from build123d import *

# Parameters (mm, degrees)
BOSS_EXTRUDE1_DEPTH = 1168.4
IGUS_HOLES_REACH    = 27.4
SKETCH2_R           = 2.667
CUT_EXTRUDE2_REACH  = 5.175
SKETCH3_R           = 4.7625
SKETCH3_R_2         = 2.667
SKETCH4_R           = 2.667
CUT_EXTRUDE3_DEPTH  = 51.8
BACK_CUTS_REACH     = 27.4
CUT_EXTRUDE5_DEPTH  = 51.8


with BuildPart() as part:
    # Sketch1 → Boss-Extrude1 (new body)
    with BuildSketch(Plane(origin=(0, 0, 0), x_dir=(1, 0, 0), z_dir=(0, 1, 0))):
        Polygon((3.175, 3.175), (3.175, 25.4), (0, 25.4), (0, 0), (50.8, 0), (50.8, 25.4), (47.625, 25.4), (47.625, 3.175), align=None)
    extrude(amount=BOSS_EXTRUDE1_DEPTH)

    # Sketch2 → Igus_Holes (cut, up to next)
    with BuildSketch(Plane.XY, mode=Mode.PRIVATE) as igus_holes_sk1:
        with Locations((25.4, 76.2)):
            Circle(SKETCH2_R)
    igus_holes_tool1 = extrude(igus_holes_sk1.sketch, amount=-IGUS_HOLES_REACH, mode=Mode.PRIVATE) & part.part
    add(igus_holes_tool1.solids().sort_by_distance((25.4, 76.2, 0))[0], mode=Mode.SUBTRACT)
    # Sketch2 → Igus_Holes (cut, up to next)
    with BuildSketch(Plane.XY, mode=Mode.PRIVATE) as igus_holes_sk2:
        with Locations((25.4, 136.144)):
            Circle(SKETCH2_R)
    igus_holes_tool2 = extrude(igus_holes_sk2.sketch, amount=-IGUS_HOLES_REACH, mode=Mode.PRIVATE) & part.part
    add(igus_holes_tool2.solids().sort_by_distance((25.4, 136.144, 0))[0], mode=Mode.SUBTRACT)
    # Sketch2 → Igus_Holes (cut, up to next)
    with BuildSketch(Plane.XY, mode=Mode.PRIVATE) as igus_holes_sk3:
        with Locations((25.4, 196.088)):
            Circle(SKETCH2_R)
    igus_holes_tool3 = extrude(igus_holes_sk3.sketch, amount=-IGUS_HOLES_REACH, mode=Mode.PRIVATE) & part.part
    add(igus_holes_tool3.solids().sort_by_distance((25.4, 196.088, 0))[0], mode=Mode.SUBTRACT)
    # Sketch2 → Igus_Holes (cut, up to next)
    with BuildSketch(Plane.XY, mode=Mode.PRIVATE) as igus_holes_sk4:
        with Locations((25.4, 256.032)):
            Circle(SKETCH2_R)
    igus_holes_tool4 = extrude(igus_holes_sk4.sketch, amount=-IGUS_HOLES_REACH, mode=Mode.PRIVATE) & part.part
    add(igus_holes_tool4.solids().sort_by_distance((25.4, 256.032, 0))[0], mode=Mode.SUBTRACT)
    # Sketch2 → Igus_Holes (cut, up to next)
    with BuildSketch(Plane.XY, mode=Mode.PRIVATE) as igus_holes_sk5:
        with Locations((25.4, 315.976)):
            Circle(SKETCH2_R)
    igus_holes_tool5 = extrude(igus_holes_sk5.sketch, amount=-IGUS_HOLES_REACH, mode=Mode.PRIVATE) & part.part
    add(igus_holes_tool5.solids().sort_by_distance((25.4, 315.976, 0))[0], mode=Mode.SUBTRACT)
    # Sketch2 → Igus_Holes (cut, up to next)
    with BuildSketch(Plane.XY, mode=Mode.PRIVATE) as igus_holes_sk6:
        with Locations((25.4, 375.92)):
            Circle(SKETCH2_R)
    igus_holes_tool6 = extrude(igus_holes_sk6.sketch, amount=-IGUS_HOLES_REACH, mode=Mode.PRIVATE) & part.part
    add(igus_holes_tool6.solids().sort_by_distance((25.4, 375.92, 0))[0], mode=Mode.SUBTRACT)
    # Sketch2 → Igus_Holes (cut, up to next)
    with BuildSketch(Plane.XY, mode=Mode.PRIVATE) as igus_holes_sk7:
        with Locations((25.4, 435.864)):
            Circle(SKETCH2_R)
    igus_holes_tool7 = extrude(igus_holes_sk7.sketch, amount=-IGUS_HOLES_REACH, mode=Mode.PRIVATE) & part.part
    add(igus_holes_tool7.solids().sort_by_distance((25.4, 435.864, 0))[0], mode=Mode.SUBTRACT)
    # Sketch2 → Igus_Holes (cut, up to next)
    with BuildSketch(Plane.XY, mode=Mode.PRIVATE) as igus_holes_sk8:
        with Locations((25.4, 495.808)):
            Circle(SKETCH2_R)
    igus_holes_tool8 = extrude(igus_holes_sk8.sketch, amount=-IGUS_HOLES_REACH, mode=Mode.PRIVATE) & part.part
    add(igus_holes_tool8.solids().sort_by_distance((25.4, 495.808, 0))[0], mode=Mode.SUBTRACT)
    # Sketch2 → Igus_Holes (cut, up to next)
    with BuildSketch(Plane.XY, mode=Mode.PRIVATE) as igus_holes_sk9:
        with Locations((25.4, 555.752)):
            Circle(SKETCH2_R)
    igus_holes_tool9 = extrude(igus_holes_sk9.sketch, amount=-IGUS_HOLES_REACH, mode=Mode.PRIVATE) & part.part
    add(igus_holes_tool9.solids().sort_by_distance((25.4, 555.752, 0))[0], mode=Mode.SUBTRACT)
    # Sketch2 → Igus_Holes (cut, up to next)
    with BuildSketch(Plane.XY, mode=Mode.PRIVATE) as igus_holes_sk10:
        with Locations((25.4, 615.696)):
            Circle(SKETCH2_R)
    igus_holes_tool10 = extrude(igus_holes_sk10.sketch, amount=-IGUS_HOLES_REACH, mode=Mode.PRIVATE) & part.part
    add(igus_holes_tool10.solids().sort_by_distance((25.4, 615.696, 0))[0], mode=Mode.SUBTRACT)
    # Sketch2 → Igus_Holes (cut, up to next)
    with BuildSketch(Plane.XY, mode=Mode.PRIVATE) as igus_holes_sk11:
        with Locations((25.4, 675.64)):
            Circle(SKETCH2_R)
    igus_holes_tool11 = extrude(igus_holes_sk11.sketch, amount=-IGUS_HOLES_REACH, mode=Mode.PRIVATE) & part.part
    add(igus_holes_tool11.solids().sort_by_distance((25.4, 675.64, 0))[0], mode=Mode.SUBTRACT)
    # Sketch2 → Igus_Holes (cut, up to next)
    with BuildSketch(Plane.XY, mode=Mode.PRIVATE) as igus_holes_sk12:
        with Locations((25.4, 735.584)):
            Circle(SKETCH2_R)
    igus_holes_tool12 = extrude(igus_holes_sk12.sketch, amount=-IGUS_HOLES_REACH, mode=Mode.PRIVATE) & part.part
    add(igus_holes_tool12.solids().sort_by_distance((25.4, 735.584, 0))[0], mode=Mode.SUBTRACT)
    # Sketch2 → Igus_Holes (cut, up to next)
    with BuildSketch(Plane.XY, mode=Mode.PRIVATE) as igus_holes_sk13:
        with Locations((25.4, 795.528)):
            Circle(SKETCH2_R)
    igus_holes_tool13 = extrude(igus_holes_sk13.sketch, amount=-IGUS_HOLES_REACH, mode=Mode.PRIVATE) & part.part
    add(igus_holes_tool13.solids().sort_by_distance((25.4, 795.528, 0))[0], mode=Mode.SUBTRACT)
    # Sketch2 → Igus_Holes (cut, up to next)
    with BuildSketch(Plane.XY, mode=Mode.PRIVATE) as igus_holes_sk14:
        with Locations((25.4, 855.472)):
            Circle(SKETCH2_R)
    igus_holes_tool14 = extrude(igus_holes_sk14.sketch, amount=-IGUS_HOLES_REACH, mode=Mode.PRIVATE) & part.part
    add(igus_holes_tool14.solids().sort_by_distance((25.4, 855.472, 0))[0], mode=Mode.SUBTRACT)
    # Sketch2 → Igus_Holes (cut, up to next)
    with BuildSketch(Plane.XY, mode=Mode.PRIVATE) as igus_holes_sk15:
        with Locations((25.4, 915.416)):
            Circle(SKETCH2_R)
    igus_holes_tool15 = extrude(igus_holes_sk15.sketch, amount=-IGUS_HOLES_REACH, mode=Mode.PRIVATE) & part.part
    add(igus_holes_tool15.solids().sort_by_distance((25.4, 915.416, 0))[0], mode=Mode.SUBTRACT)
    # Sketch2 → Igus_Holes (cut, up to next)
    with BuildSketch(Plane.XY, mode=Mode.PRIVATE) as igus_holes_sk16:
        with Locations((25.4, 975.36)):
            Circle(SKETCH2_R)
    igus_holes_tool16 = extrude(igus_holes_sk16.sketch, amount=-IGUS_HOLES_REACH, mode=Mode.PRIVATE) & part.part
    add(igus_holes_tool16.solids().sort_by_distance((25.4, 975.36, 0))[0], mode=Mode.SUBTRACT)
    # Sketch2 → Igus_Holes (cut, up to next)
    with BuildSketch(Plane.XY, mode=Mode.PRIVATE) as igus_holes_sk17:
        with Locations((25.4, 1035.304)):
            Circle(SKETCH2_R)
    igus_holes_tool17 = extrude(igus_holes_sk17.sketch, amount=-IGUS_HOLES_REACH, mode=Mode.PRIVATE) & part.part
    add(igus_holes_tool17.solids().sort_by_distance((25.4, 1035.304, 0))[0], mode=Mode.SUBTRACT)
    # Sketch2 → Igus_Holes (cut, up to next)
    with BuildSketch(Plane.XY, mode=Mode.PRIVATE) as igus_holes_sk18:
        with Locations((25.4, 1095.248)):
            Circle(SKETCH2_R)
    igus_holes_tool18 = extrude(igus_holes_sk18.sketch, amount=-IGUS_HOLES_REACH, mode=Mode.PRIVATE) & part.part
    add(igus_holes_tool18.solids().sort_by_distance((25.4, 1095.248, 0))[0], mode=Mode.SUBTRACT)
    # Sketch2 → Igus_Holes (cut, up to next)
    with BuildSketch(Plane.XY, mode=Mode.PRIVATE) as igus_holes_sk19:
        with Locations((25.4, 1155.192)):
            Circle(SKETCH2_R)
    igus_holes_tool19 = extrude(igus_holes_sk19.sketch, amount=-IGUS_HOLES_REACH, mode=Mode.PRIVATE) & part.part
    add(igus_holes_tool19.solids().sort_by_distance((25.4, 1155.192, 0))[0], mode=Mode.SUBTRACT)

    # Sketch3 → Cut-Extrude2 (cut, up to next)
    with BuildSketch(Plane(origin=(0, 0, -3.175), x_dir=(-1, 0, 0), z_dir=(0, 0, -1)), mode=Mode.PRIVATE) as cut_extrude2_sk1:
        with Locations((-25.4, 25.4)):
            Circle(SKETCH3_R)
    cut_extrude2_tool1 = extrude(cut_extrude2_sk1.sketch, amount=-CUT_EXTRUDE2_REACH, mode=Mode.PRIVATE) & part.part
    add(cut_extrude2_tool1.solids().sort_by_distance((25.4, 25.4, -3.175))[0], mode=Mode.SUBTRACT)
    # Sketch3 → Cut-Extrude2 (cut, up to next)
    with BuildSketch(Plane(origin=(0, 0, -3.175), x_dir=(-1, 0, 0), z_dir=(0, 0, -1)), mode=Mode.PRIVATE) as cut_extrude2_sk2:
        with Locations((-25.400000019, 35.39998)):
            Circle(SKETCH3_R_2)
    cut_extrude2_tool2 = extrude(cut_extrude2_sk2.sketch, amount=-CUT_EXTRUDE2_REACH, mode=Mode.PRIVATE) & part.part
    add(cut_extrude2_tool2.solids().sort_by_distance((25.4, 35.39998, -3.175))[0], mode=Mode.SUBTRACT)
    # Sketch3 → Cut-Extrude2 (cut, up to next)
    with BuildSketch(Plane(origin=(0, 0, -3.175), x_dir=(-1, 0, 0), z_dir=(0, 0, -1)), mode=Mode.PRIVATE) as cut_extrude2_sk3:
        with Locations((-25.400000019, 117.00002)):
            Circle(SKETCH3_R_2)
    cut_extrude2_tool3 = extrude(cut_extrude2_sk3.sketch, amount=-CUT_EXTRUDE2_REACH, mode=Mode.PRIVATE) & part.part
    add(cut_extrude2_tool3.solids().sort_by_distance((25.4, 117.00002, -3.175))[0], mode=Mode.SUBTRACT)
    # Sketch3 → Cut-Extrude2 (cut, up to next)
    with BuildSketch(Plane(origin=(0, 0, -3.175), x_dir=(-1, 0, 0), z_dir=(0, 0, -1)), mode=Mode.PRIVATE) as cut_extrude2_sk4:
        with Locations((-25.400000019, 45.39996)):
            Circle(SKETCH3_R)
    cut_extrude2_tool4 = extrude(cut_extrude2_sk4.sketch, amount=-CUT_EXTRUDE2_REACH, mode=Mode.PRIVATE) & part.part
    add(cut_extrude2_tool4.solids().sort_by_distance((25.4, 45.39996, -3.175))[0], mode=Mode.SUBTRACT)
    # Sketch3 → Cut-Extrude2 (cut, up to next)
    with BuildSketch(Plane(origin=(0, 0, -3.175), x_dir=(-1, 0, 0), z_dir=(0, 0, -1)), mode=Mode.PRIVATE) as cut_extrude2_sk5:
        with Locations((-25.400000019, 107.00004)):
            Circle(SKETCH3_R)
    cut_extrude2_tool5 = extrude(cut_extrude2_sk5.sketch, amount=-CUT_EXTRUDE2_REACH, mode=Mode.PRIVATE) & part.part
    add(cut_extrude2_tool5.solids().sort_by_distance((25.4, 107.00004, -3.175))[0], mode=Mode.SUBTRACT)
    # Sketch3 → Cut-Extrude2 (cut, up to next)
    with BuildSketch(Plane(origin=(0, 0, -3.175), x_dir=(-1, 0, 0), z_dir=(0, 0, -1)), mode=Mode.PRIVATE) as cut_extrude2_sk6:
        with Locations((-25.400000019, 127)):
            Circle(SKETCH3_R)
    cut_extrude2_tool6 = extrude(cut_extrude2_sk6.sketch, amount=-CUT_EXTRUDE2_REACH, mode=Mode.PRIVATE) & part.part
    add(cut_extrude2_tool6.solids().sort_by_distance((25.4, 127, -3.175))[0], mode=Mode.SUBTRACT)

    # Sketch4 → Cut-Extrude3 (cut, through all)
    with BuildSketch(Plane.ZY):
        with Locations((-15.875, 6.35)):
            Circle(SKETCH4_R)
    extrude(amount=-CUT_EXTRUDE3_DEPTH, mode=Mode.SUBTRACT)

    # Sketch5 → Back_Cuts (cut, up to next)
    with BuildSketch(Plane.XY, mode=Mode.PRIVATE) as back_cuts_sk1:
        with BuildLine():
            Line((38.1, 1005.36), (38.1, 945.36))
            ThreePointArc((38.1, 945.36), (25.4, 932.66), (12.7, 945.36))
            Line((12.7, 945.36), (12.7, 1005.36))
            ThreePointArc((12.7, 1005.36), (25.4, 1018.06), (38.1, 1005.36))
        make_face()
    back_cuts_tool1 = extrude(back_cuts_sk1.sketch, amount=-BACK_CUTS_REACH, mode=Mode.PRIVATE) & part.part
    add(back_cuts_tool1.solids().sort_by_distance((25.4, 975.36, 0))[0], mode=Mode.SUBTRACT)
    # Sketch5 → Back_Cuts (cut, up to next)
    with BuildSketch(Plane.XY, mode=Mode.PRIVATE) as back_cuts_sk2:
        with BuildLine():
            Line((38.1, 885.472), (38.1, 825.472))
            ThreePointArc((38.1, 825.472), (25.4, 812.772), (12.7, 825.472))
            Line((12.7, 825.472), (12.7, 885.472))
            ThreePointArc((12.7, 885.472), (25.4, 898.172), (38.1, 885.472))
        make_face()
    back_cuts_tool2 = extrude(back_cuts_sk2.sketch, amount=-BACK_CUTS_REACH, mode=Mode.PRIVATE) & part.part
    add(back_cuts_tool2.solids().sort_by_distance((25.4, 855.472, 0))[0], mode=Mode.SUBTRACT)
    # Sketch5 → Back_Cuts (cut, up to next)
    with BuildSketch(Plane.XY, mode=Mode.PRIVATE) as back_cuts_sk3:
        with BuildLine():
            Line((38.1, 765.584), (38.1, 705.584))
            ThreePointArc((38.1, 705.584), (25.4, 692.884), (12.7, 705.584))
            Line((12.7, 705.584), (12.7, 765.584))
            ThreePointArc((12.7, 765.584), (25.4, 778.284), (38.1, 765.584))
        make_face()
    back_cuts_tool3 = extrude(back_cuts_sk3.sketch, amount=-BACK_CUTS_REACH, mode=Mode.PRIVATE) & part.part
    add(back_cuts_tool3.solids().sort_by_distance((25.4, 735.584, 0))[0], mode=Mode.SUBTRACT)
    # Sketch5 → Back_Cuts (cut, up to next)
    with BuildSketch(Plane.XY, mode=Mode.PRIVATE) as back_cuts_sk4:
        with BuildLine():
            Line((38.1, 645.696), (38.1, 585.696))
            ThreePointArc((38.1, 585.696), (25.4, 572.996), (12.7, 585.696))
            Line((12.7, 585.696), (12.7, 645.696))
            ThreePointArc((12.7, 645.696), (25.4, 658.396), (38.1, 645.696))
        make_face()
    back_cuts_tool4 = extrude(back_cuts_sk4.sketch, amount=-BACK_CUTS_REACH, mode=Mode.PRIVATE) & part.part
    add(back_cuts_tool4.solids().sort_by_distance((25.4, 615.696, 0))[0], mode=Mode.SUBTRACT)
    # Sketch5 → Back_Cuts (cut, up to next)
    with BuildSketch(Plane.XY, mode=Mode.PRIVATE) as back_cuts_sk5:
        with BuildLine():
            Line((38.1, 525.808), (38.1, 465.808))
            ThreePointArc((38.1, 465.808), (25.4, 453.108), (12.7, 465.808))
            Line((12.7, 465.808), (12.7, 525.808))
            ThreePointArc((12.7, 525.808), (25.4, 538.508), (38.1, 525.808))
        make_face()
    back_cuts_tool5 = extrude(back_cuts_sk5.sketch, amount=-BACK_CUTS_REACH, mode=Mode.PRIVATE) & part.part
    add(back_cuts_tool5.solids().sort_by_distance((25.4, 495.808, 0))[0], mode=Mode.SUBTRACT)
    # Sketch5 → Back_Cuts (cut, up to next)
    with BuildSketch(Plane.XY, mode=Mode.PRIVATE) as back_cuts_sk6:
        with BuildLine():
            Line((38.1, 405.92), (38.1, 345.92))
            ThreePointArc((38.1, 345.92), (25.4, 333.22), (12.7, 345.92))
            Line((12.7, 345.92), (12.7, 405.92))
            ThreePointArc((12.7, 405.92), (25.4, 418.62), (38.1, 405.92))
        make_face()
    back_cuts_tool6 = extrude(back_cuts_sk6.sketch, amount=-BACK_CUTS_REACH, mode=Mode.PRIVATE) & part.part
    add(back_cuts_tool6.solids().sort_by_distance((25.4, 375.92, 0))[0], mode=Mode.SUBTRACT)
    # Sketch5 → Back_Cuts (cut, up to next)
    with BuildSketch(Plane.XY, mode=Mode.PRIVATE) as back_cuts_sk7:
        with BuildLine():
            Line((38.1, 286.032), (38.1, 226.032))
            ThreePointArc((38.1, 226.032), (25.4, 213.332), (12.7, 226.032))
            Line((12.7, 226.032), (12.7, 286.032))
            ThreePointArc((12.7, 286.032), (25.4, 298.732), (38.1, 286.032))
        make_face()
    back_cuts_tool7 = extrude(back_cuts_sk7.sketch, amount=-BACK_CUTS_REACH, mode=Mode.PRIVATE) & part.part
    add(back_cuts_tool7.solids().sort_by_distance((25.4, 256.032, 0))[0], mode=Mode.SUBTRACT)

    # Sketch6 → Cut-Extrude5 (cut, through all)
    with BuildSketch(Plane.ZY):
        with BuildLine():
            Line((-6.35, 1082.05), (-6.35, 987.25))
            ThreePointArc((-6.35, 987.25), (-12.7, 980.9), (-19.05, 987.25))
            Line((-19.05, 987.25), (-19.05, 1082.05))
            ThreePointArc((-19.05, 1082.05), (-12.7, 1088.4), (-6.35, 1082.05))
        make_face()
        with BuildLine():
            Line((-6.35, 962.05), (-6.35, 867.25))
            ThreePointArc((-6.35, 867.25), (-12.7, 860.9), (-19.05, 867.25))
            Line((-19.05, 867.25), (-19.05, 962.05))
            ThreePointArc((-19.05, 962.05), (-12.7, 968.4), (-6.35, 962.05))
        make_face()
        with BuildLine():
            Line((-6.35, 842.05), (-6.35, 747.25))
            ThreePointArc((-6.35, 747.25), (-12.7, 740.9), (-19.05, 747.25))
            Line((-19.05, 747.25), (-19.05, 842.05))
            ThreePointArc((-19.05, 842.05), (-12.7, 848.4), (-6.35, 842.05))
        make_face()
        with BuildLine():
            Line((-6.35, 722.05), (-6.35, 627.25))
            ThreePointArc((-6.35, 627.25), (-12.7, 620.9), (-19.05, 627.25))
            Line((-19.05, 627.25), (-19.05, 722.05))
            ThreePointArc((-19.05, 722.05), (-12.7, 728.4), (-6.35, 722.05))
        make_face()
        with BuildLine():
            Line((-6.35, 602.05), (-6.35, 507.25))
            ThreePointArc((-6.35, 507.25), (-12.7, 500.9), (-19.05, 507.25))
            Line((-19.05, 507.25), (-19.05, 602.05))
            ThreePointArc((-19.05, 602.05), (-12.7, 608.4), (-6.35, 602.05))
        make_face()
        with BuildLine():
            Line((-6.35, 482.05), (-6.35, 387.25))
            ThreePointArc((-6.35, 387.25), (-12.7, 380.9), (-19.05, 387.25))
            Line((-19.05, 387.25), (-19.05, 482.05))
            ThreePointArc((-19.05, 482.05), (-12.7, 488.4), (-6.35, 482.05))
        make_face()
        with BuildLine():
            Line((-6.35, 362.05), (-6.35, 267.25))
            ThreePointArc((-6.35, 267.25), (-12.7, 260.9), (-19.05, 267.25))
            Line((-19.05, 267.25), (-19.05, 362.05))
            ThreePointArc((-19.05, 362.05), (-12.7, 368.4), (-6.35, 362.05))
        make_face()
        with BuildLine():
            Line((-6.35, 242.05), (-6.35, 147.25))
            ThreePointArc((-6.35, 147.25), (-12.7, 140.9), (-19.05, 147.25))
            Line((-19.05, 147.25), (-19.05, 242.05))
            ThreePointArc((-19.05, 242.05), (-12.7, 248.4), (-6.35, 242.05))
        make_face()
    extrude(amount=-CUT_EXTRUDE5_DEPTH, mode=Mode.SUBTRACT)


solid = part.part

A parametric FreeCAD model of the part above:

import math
import FreeCAD as App
import Part
import Sketcher
from FreeCAD import Vector
Q = App.Units.Quantity


def add_polygon(sketch, points):
    """Adds a closed chain of lines whose ends are joined by coincident constraints."""
    first, n = sketch.GeometryCount, len(points)
    for a, b in zip(points, points[1:] + points[:1]):
        sketch.addGeometry(Part.LineSegment(App.Vector(*a, 0), App.Vector(*b, 0)), False)
    for i in range(n):
        sketch.addConstraint(Sketcher.Constraint("Coincident", first + i, 2, first + (i + 1) % n, 1))

doc = App.newDocument("Part")
body = doc.addObject("PartDesign::Body", "Body")

# Sketch on XZ plane
sketch1 = doc.addObject("Sketcher::SketchObject", "Sketch")
body.addObject(sketch1)
sketch1.AttachmentSupport = (doc.XZ_Plane, [""])
sketch1.MapMode = "FlatFace"
add_polygon(sketch1, [(3.2, -3.2), (3.2, -25.4), (0, -25.4), (0, 0), (50.8, 0), (50.8, -25.4), (47.6, -25.4), (47.6, -3.2)])  # lines 0-7
sketch1.addConstraint([
    Sketcher.Constraint("Vertical", 0),
    Sketcher.Constraint("Horizontal", 1),
    Sketcher.Constraint("Vertical", 2),
    Sketcher.Constraint("Horizontal", 3),
    Sketcher.Constraint("Vertical", 4),
    Sketcher.Constraint("Horizontal", 5),
    Sketcher.Constraint("Vertical", 6),
    Sketcher.Constraint("Horizontal", 7),
    Sketcher.Constraint("Coincident", 2, 2, -1, 1),
    Sketcher.Constraint("Horizontal", 1, 2, 4, 2),
    Sketcher.Constraint("Equal", 1, 5),
    Sketcher.Constraint("DistanceX", 3, 1, 3, 2, Q("2 in")),
    Sketcher.Constraint("DistanceY", 2, 1, 2, 2, Q("1 in")),
    Sketcher.Constraint("DistanceX", 7, 2, 7, 1, Q("1.75 in")),
    Sketcher.Constraint("DistanceY", 0, 2, 0, 1, Q("0.875 in")),
])
pad1 = doc.addObject("PartDesign::Pad", "Pad")
body.addObject(pad1)
pad1.Profile = sketch1
pad1.Length = Q("46 in")
pad1.Reversed = True

# Sketch on XY plane
sketch2 = doc.addObject("Sketcher::SketchObject", "Sketch001")
body.addObject(sketch2)
sketch2.AttachmentSupport = (doc.XY_Plane, [""])
sketch2.MapMode = "FlatFace"
sketch2.addGeometry(Part.Circle(Vector(25.4, 76.2, 0), Vector(0, 0, 1), 2.7), False)
sketch2.addConstraint([
    Sketcher.Constraint("Diameter", 0, Q("0.21 in")),
    Sketcher.Constraint("DistanceX", -1, 1, 0, 3, Q("1 in")),
    Sketcher.Constraint("DistanceY", -1, 1, 0, 3, Q("3 in")),
])
pocket1 = doc.addObject("PartDesign::Pocket", "Pocket")
body.addObject(pocket1)
pocket1.Profile = sketch2
pocket1.Type = "UpToFirst"

# Sketch on XY plane
sketch3 = doc.addObject("Sketcher::SketchObject", "Sketch002")
body.addObject(sketch3)
sketch3.AttachmentSupport = (doc.XY_Plane, [""])
sketch3.MapMode = "FlatFace"
sketch3.addGeometry(Part.Circle(Vector(25.4, 136.1, 0), Vector(0, 0, 1), 2.7), False)
sketch3.addConstraint([
    Sketcher.Constraint("Diameter", 0, Q("0.21 in")),
    Sketcher.Constraint("DistanceX", -1, 1, 0, 3, Q("1 in")),
    Sketcher.Constraint("DistanceY", -1, 1, 0, 3, Q("5.36 in")),
])
pocket2 = doc.addObject("PartDesign::Pocket", "Pocket001")
body.addObject(pocket2)
pocket2.Profile = sketch3
pocket2.Type = "UpToFirst"

# Sketch on XY plane
sketch4 = doc.addObject("Sketcher::SketchObject", "Sketch003")
body.addObject(sketch4)
sketch4.AttachmentSupport = (doc.XY_Plane, [""])
sketch4.MapMode = "FlatFace"
sketch4.addGeometry(Part.Circle(Vector(25.4, 196.1, 0), Vector(0, 0, 1), 2.7), False)
sketch4.addConstraint([
    Sketcher.Constraint("Diameter", 0, Q("0.21 in")),
    Sketcher.Constraint("DistanceX", -1, 1, 0, 3, Q("1 in")),
    Sketcher.Constraint("DistanceY", -1, 1, 0, 3, Q("7.72 in")),
])
pocket3 = doc.addObject("PartDesign::Pocket", "Pocket002")
body.addObject(pocket3)
pocket3.Profile = sketch4
pocket3.Type = "UpToFirst"

# Sketch on XY plane
sketch5 = doc.addObject("Sketcher::SketchObject", "Sketch004")
body.addObject(sketch5)
sketch5.AttachmentSupport = (doc.XY_Plane, [""])
sketch5.MapMode = "FlatFace"
sketch5.addGeometry(Part.Circle(Vector(25.4, 256, 0), Vector(0, 0, 1), 2.7), False)
sketch5.addConstraint([
    Sketcher.Constraint("Diameter", 0, Q("0.21 in")),
    Sketcher.Constraint("DistanceX", -1, 1, 0, 3, Q("1 in")),
    Sketcher.Constraint("DistanceY", -1, 1, 0, 3, Q("10.08 in")),
])
pocket4 = doc.addObject("PartDesign::Pocket", "Pocket003")
body.addObject(pocket4)
pocket4.Profile = sketch5
pocket4.Type = "UpToFirst"

# Sketch on XY plane
sketch6 = doc.addObject("Sketcher::SketchObject", "Sketch005")
body.addObject(sketch6)
sketch6.AttachmentSupport = (doc.XY_Plane, [""])
sketch6.MapMode = "FlatFace"
sketch6.addGeometry(Part.Circle(Vector(25.4, 316, 0), Vector(0, 0, 1), 2.7), False)
sketch6.addConstraint([
    Sketcher.Constraint("Diameter", 0, Q("0.21 in")),
    Sketcher.Constraint("DistanceX", -1, 1, 0, 3, Q("1 in")),
    Sketcher.Constraint("DistanceY", -1, 1, 0, 3, Q("12.44 in")),
])
pocket5 = doc.addObject("PartDesign::Pocket", "Pocket004")
body.addObject(pocket5)
pocket5.Profile = sketch6
pocket5.Type = "UpToFirst"

# Sketch on XY plane
sketch7 = doc.addObject("Sketcher::SketchObject", "Sketch006")
body.addObject(sketch7)
sketch7.AttachmentSupport = (doc.XY_Plane, [""])
sketch7.MapMode = "FlatFace"
sketch7.addGeometry(Part.Circle(Vector(25.4, 375.9, 0), Vector(0, 0, 1), 2.7), False)
sketch7.addConstraint([
    Sketcher.Constraint("Diameter", 0, Q("0.21 in")),
    Sketcher.Constraint("DistanceX", -1, 1, 0, 3, Q("1 in")),
    Sketcher.Constraint("DistanceY", -1, 1, 0, 3, Q("14.8 in")),
])
pocket6 = doc.addObject("PartDesign::Pocket", "Pocket005")
body.addObject(pocket6)
pocket6.Profile = sketch7
pocket6.Type = "UpToFirst"

# Sketch on XY plane
sketch8 = doc.addObject("Sketcher::SketchObject", "Sketch007")
body.addObject(sketch8)
sketch8.AttachmentSupport = (doc.XY_Plane, [""])
sketch8.MapMode = "FlatFace"
sketch8.addGeometry(Part.Circle(Vector(25.4, 435.9, 0), Vector(0, 0, 1), 2.7), False)
sketch8.addConstraint([
    Sketcher.Constraint("Diameter", 0, Q("0.21 in")),
    Sketcher.Constraint("DistanceX", -1, 1, 0, 3, Q("1 in")),
    Sketcher.Constraint("DistanceY", -1, 1, 0, 3, Q("17.16 in")),
])
pocket7 = doc.addObject("PartDesign::Pocket", "Pocket006")
body.addObject(pocket7)
pocket7.Profile = sketch8
pocket7.Type = "UpToFirst"

# Sketch on XY plane
sketch9 = doc.addObject("Sketcher::SketchObject", "Sketch008")
body.addObject(sketch9)
sketch9.AttachmentSupport = (doc.XY_Plane, [""])
sketch9.MapMode = "FlatFace"
sketch9.addGeometry(Part.Circle(Vector(25.4, 495.8, 0), Vector(0, 0, 1), 2.7), False)
sketch9.addConstraint([
    Sketcher.Constraint("Diameter", 0, Q("0.21 in")),
    Sketcher.Constraint("DistanceX", -1, 1, 0, 3, Q("1 in")),
    Sketcher.Constraint("DistanceY", -1, 1, 0, 3, Q("19.52 in")),
])
pocket8 = doc.addObject("PartDesign::Pocket", "Pocket007")
body.addObject(pocket8)
pocket8.Profile = sketch9
pocket8.Type = "UpToFirst"

# Sketch on XY plane
sketch10 = doc.addObject("Sketcher::SketchObject", "Sketch009")
body.addObject(sketch10)
sketch10.AttachmentSupport = (doc.XY_Plane, [""])
sketch10.MapMode = "FlatFace"
sketch10.addGeometry(Part.Circle(Vector(25.4, 555.8, 0), Vector(0, 0, 1), 2.7), False)
sketch10.addConstraint([
    Sketcher.Constraint("Diameter", 0, Q("0.21 in")),
    Sketcher.Constraint("DistanceX", -1, 1, 0, 3, Q("1 in")),
    Sketcher.Constraint("DistanceY", -1, 1, 0, 3, Q("21.88 in")),
])
pocket9 = doc.addObject("PartDesign::Pocket", "Pocket008")
body.addObject(pocket9)
pocket9.Profile = sketch10
pocket9.Type = "UpToFirst"

# Sketch on XY plane
sketch11 = doc.addObject("Sketcher::SketchObject", "Sketch010")
body.addObject(sketch11)
sketch11.AttachmentSupport = (doc.XY_Plane, [""])
sketch11.MapMode = "FlatFace"
sketch11.addGeometry(Part.Circle(Vector(25.4, 615.7, 0), Vector(0, 0, 1), 2.7), False)
sketch11.addConstraint([
    Sketcher.Constraint("Diameter", 0, Q("0.21 in")),
    Sketcher.Constraint("DistanceX", -1, 1, 0, 3, Q("1 in")),
    Sketcher.Constraint("DistanceY", -1, 1, 0, 3, Q("24.24 in")),
])
pocket10 = doc.addObject("PartDesign::Pocket", "Pocket009")
body.addObject(pocket10)
pocket10.Profile = sketch11
pocket10.Type = "UpToFirst"

# Sketch on XY plane
sketch12 = doc.addObject("Sketcher::SketchObject", "Sketch011")
body.addObject(sketch12)
sketch12.AttachmentSupport = (doc.XY_Plane, [""])
sketch12.MapMode = "FlatFace"
sketch12.addGeometry(Part.Circle(Vector(25.4, 675.6, 0), Vector(0, 0, 1), 2.7), False)
sketch12.addConstraint([
    Sketcher.Constraint("Diameter", 0, Q("0.21 in")),
    Sketcher.Constraint("DistanceX", -1, 1, 0, 3, Q("1 in")),
    Sketcher.Constraint("DistanceY", -1, 1, 0, 3, Q("26.6 in")),
])
pocket11 = doc.addObject("PartDesign::Pocket", "Pocket010")
body.addObject(pocket11)
pocket11.Profile = sketch12
pocket11.Type = "UpToFirst"

# Sketch on XY plane
sketch13 = doc.addObject("Sketcher::SketchObject", "Sketch012")
body.addObject(sketch13)
sketch13.AttachmentSupport = (doc.XY_Plane, [""])
sketch13.MapMode = "FlatFace"
sketch13.addGeometry(Part.Circle(Vector(25.4, 735.6, 0), Vector(0, 0, 1), 2.7), False)
sketch13.addConstraint([
    Sketcher.Constraint("Diameter", 0, Q("0.21 in")),
    Sketcher.Constraint("DistanceX", -1, 1, 0, 3, Q("1 in")),
    Sketcher.Constraint("DistanceY", -1, 1, 0, 3, Q("28.96 in")),
])
pocket12 = doc.addObject("PartDesign::Pocket", "Pocket011")
body.addObject(pocket12)
pocket12.Profile = sketch13
pocket12.Type = "UpToFirst"

# Sketch on XY plane
sketch14 = doc.addObject("Sketcher::SketchObject", "Sketch013")
body.addObject(sketch14)
sketch14.AttachmentSupport = (doc.XY_Plane, [""])
sketch14.MapMode = "FlatFace"
sketch14.addGeometry(Part.Circle(Vector(25.4, 795.5, 0), Vector(0, 0, 1), 2.7), False)
sketch14.addConstraint([
    Sketcher.Constraint("Diameter", 0, Q("0.21 in")),
    Sketcher.Constraint("DistanceX", -1, 1, 0, 3, Q("1 in")),
    Sketcher.Constraint("DistanceY", -1, 1, 0, 3, Q("31.32 in")),
])
pocket13 = doc.addObject("PartDesign::Pocket", "Pocket012")
body.addObject(pocket13)
pocket13.Profile = sketch14
pocket13.Type = "UpToFirst"

# Sketch on XY plane
sketch15 = doc.addObject("Sketcher::SketchObject", "Sketch014")
body.addObject(sketch15)
sketch15.AttachmentSupport = (doc.XY_Plane, [""])
sketch15.MapMode = "FlatFace"
sketch15.addGeometry(Part.Circle(Vector(25.4, 855.5, 0), Vector(0, 0, 1), 2.7), False)
sketch15.addConstraint([
    Sketcher.Constraint("Diameter", 0, Q("0.21 in")),
    Sketcher.Constraint("DistanceX", -1, 1, 0, 3, Q("1 in")),
    Sketcher.Constraint("DistanceY", -1, 1, 0, 3, Q("33.68 in")),
])
pocket14 = doc.addObject("PartDesign::Pocket", "Pocket013")
body.addObject(pocket14)
pocket14.Profile = sketch15
pocket14.Type = "UpToFirst"

# Sketch on XY plane
sketch16 = doc.addObject("Sketcher::SketchObject", "Sketch015")
body.addObject(sketch16)
sketch16.AttachmentSupport = (doc.XY_Plane, [""])
sketch16.MapMode = "FlatFace"
sketch16.addGeometry(Part.Circle(Vector(25.4, 915.4, 0), Vector(0, 0, 1), 2.7), False)
sketch16.addConstraint([
    Sketcher.Constraint("Diameter", 0, Q("0.21 in")),
    Sketcher.Constraint("DistanceX", -1, 1, 0, 3, Q("1 in")),
    Sketcher.Constraint("DistanceY", -1, 1, 0, 3, Q("36.04 in")),
])
pocket15 = doc.addObject("PartDesign::Pocket", "Pocket014")
body.addObject(pocket15)
pocket15.Profile = sketch16
pocket15.Type = "UpToFirst"

# Sketch on XY plane
sketch17 = doc.addObject("Sketcher::SketchObject", "Sketch016")
body.addObject(sketch17)
sketch17.AttachmentSupport = (doc.XY_Plane, [""])
sketch17.MapMode = "FlatFace"
sketch17.addGeometry(Part.Circle(Vector(25.4, 975.4, 0), Vector(0, 0, 1), 2.7), False)
sketch17.addConstraint([
    Sketcher.Constraint("Diameter", 0, Q("0.21 in")),
    Sketcher.Constraint("DistanceX", -1, 1, 0, 3, Q("1 in")),
    Sketcher.Constraint("DistanceY", -1, 1, 0, 3, Q("38.4 in")),
])
pocket16 = doc.addObject("PartDesign::Pocket", "Pocket015")
body.addObject(pocket16)
pocket16.Profile = sketch17
pocket16.Type = "UpToFirst"

# Sketch on XY plane
sketch18 = doc.addObject("Sketcher::SketchObject", "Sketch017")
body.addObject(sketch18)
sketch18.AttachmentSupport = (doc.XY_Plane, [""])
sketch18.MapMode = "FlatFace"
sketch18.addGeometry(Part.Circle(Vector(25.4, 1035.3, 0), Vector(0, 0, 1), 2.7), False)
sketch18.addConstraint([
    Sketcher.Constraint("Diameter", 0, Q("0.21 in")),
    Sketcher.Constraint("DistanceX", -1, 1, 0, 3, Q("1 in")),
    Sketcher.Constraint("DistanceY", -1, 1, 0, 3, Q("40.76 in")),
])
pocket17 = doc.addObject("PartDesign::Pocket", "Pocket016")
body.addObject(pocket17)
pocket17.Profile = sketch18
pocket17.Type = "UpToFirst"

# Sketch on XY plane
sketch19 = doc.addObject("Sketcher::SketchObject", "Sketch018")
body.addObject(sketch19)
sketch19.AttachmentSupport = (doc.XY_Plane, [""])
sketch19.MapMode = "FlatFace"
sketch19.addGeometry(Part.Circle(Vector(25.4, 1095.2, 0), Vector(0, 0, 1), 2.7), False)
sketch19.addConstraint([
    Sketcher.Constraint("Diameter", 0, Q("0.21 in")),
    Sketcher.Constraint("DistanceX", -1, 1, 0, 3, Q("1 in")),
    Sketcher.Constraint("DistanceY", -1, 1, 0, 3, Q("43.12 in")),
])
pocket18 = doc.addObject("PartDesign::Pocket", "Pocket017")
body.addObject(pocket18)
pocket18.Profile = sketch19
pocket18.Type = "UpToFirst"

# Sketch on XY plane
sketch20 = doc.addObject("Sketcher::SketchObject", "Sketch019")
body.addObject(sketch20)
sketch20.AttachmentSupport = (doc.XY_Plane, [""])
sketch20.MapMode = "FlatFace"
sketch20.addGeometry(Part.Circle(Vector(25.4, 1155.2, 0), Vector(0, 0, 1), 2.7), False)
sketch20.addConstraint([
    Sketcher.Constraint("Diameter", 0, Q("0.21 in")),
    Sketcher.Constraint("DistanceX", -1, 1, 0, 3, Q("1 in")),
    Sketcher.Constraint("DistanceY", -1, 1, 0, 3, Q("45.48 in")),
])
pocket19 = doc.addObject("PartDesign::Pocket", "Pocket018")
body.addObject(pocket19)
pocket19.Profile = sketch20
pocket19.Type = "UpToFirst"

# Sketch on XY plane
sketch21 = doc.addObject("Sketcher::SketchObject", "Sketch020")
body.addObject(sketch21)
sketch21.AttachmentSupport = (doc.XY_Plane, [""])
sketch21.MapMode = "FlatFace"
sketch21.AttachmentOffset = App.Placement(Vector(0, 0, -0.125 * 25.4), App.Rotation())
sketch21.addGeometry(Part.Circle(Vector(25.4, 25.4, 0), Vector(0, 0, 1), 4.8), False)
sketch21.addConstraint([
    Sketcher.Constraint("Diameter", 0, Q("0.375 in")),
    Sketcher.Constraint("DistanceX", -1, 1, 0, 3, Q("1 in")),
    Sketcher.Constraint("DistanceY", -1, 1, 0, 3, Q("1 in")),
])
pocket20 = doc.addObject("PartDesign::Pocket", "Pocket019")
body.addObject(pocket20)
pocket20.Profile = sketch21
pocket20.Type = "UpToFirst"
pocket20.Reversed = True

# Sketch on XY plane
sketch22 = doc.addObject("Sketcher::SketchObject", "Sketch021")
body.addObject(sketch22)
sketch22.AttachmentSupport = (doc.XY_Plane, [""])
sketch22.MapMode = "FlatFace"
sketch22.AttachmentOffset = App.Placement(Vector(0, 0, -0.125 * 25.4), App.Rotation())
sketch22.addGeometry(Part.Circle(Vector(25.4, 35.4, 0), Vector(0, 0, 1), 2.7), False)
sketch22.addConstraint([
    Sketcher.Constraint("Diameter", 0, Q("0.21 in")),
    Sketcher.Constraint("DistanceX", -1, 1, 0, 3, Q("1 in")),
    Sketcher.Constraint("DistanceY", -1, 1, 0, 3, Q("1.3937 in")),
])
pocket21 = doc.addObject("PartDesign::Pocket", "Pocket020")
body.addObject(pocket21)
pocket21.Profile = sketch22
pocket21.Type = "UpToFirst"
pocket21.Reversed = True

# Sketch on XY plane
sketch23 = doc.addObject("Sketcher::SketchObject", "Sketch022")
body.addObject(sketch23)
sketch23.AttachmentSupport = (doc.XY_Plane, [""])
sketch23.MapMode = "FlatFace"
sketch23.AttachmentOffset = App.Placement(Vector(0, 0, -0.125 * 25.4), App.Rotation())
sketch23.addGeometry(Part.Circle(Vector(25.4, 117, 0), Vector(0, 0, 1), 2.7), False)
sketch23.addConstraint([
    Sketcher.Constraint("Diameter", 0, Q("0.21 in")),
    Sketcher.Constraint("DistanceX", -1, 1, 0, 3, Q("1 in")),
    Sketcher.Constraint("DistanceY", -1, 1, 0, 3, Q("4.6063 in")),
])
pocket22 = doc.addObject("PartDesign::Pocket", "Pocket021")
body.addObject(pocket22)
pocket22.Profile = sketch23
pocket22.Type = "UpToFirst"
pocket22.Reversed = True

# Sketch on XY plane
sketch24 = doc.addObject("Sketcher::SketchObject", "Sketch023")
body.addObject(sketch24)
sketch24.AttachmentSupport = (doc.XY_Plane, [""])
sketch24.MapMode = "FlatFace"
sketch24.AttachmentOffset = App.Placement(Vector(0, 0, -0.125 * 25.4), App.Rotation())
sketch24.addGeometry(Part.Circle(Vector(25.4, 45.4, 0), Vector(0, 0, 1), 4.8), False)
sketch24.addConstraint([
    Sketcher.Constraint("Diameter", 0, Q("0.375 in")),
    Sketcher.Constraint("DistanceX", -1, 1, 0, 3, Q("1 in")),
    Sketcher.Constraint("DistanceY", -1, 1, 0, 3, Q("1.7874 in")),
])
pocket23 = doc.addObject("PartDesign::Pocket", "Pocket022")
body.addObject(pocket23)
pocket23.Profile = sketch24
pocket23.Type = "UpToFirst"
pocket23.Reversed = True

# Sketch on XY plane
sketch25 = doc.addObject("Sketcher::SketchObject", "Sketch024")
body.addObject(sketch25)
sketch25.AttachmentSupport = (doc.XY_Plane, [""])
sketch25.MapMode = "FlatFace"
sketch25.AttachmentOffset = App.Placement(Vector(0, 0, -0.125 * 25.4), App.Rotation())
sketch25.addGeometry(Part.Circle(Vector(25.4, 107, 0), Vector(0, 0, 1), 4.8), False)
sketch25.addConstraint([
    Sketcher.Constraint("Diameter", 0, Q("0.375 in")),
    Sketcher.Constraint("DistanceX", -1, 1, 0, 3, Q("1 in")),
    Sketcher.Constraint("DistanceY", -1, 1, 0, 3, Q("4.2126 in")),
])
pocket24 = doc.addObject("PartDesign::Pocket", "Pocket023")
body.addObject(pocket24)
pocket24.Profile = sketch25
pocket24.Type = "UpToFirst"
pocket24.Reversed = True

# Sketch on XY plane
sketch26 = doc.addObject("Sketcher::SketchObject", "Sketch025")
body.addObject(sketch26)
sketch26.AttachmentSupport = (doc.XY_Plane, [""])
sketch26.MapMode = "FlatFace"
sketch26.AttachmentOffset = App.Placement(Vector(0, 0, -0.125 * 25.4), App.Rotation())
sketch26.addGeometry(Part.Circle(Vector(25.4, 127, 0), Vector(0, 0, 1), 4.8), False)
sketch26.addConstraint([
    Sketcher.Constraint("Diameter", 0, Q("0.375 in")),
    Sketcher.Constraint("DistanceX", -1, 1, 0, 3, Q("1 in")),
    Sketcher.Constraint("DistanceY", -1, 1, 0, 3, Q("5 in")),
])
pocket25 = doc.addObject("PartDesign::Pocket", "Pocket024")
body.addObject(pocket25)
pocket25.Profile = sketch26
pocket25.Type = "UpToFirst"
pocket25.Reversed = True

# Sketch on YZ plane
sketch27 = doc.addObject("Sketcher::SketchObject", "Sketch026")
body.addObject(sketch27)
sketch27.AttachmentSupport = (doc.YZ_Plane, [""])
sketch27.MapMode = "FlatFace"
sketch27.addGeometry(Part.Circle(Vector(6.3, -15.9, 0), Vector(0, 0, 1), 2.7), False)
sketch27.addConstraint([
    Sketcher.Constraint("Diameter", 0, Q("0.21 in")),
    Sketcher.Constraint("DistanceX", -1, 1, 0, 3, Q("0.25 in")),
    Sketcher.Constraint("DistanceY", 0, 3, -1, 1, Q("0.625 in")),
])
pocket26 = doc.addObject("PartDesign::Pocket", "Pocket025")
body.addObject(pocket26)
pocket26.Profile = sketch27
pocket26.Type = "ThroughAll"
pocket26.Reversed = True

# Sketch on XY plane
sketch28 = doc.addObject("Sketcher::SketchObject", "Sketch027")
body.addObject(sketch28)
sketch28.AttachmentSupport = (doc.XY_Plane, [""])
sketch28.MapMode = "FlatFace"
sketch28.addGeometry([
    Part.LineSegment(Vector(38, 945, 0), Vector(38, 1005, 0)),
    Part.ArcOfCircle(Part.Circle(Vector(25, 1005, 0), Vector(0, 0, 1), 13), math.radians(0), math.radians(180)),
    Part.LineSegment(Vector(13, 1005, 0), Vector(13, 945, 0)),
    Part.ArcOfCircle(Part.Circle(Vector(25, 945, 0), Vector(0, 0, 1), 13), math.radians(180), math.radians(360)),
], False)
sketch28.addConstraint([
    Sketcher.Constraint("Tangent", 0, 2, 1, 1),
    Sketcher.Constraint("Tangent", 1, 2, 2, 1),
    Sketcher.Constraint("Tangent", 2, 2, 3, 1),
    Sketcher.Constraint("Tangent", 3, 2, 0, 1),
    Sketcher.Constraint("Vertical", 0),
    Sketcher.Constraint("Vertical", 2),
    Sketcher.Constraint("Radius", 1, Q("0.5 in")),
    Sketcher.Constraint("DistanceX", -1, 1, 1, 3, Q("1 in")),
    Sketcher.Constraint("DistanceY", 0, 1, 0, 2, 60.0),
    Sketcher.Constraint("DistanceY", -1, 1, 1, 3, 1005.36),
])
pocket27 = doc.addObject("PartDesign::Pocket", "Pocket026")
body.addObject(pocket27)
pocket27.Profile = sketch28
pocket27.Length = Q("0.125 in")

# Sketch on XY plane
sketch29 = doc.addObject("Sketcher::SketchObject", "Sketch028")
body.addObject(sketch29)
sketch29.AttachmentSupport = (doc.XY_Plane, [""])
sketch29.MapMode = "FlatFace"
sketch29.addGeometry([
    Part.LineSegment(Vector(38, 825, 0), Vector(38, 885, 0)),
    Part.ArcOfCircle(Part.Circle(Vector(25, 885, 0), Vector(0, 0, 1), 13), math.radians(0), math.radians(180)),
    Part.LineSegment(Vector(13, 885, 0), Vector(13, 825, 0)),
    Part.ArcOfCircle(Part.Circle(Vector(25, 825, 0), Vector(0, 0, 1), 13), math.radians(180), math.radians(360)),
], False)
sketch29.addConstraint([
    Sketcher.Constraint("Tangent", 0, 2, 1, 1),
    Sketcher.Constraint("Tangent", 1, 2, 2, 1),
    Sketcher.Constraint("Tangent", 2, 2, 3, 1),
    Sketcher.Constraint("Tangent", 3, 2, 0, 1),
    Sketcher.Constraint("Vertical", 0),
    Sketcher.Constraint("Vertical", 2),
    Sketcher.Constraint("Radius", 1, Q("0.5 in")),
    Sketcher.Constraint("DistanceX", -1, 1, 1, 3, Q("1 in")),
    Sketcher.Constraint("DistanceY", 0, 1, 0, 2, 60.0),
    Sketcher.Constraint("DistanceY", -1, 1, 1, 3, 885.472),
])
pocket28 = doc.addObject("PartDesign::Pocket", "Pocket027")
body.addObject(pocket28)
pocket28.Profile = sketch29
pocket28.Length = Q("0.125 in")

# Sketch on XY plane
sketch30 = doc.addObject("Sketcher::SketchObject", "Sketch029")
body.addObject(sketch30)
sketch30.AttachmentSupport = (doc.XY_Plane, [""])
sketch30.MapMode = "FlatFace"
sketch30.addGeometry([
    Part.LineSegment(Vector(38, 706, 0), Vector(38, 766, 0)),
    Part.ArcOfCircle(Part.Circle(Vector(25, 766, 0), Vector(0, 0, 1), 13), math.radians(0), math.radians(180)),
    Part.LineSegment(Vector(13, 766, 0), Vector(13, 706, 0)),
    Part.ArcOfCircle(Part.Circle(Vector(25, 706, 0), Vector(0, 0, 1), 13), math.radians(180), math.radians(360)),
], False)
sketch30.addConstraint([
    Sketcher.Constraint("Tangent", 0, 2, 1, 1),
    Sketcher.Constraint("Tangent", 1, 2, 2, 1),
    Sketcher.Constraint("Tangent", 2, 2, 3, 1),
    Sketcher.Constraint("Tangent", 3, 2, 0, 1),
    Sketcher.Constraint("Vertical", 0),
    Sketcher.Constraint("Vertical", 2),
    Sketcher.Constraint("Radius", 1, Q("0.5 in")),
    Sketcher.Constraint("DistanceX", -1, 1, 1, 3, Q("1 in")),
    Sketcher.Constraint("DistanceY", 0, 1, 0, 2, 60.0),
    Sketcher.Constraint("DistanceY", -1, 1, 1, 3, 765.584),
])
pocket29 = doc.addObject("PartDesign::Pocket", "Pocket028")
body.addObject(pocket29)
pocket29.Profile = sketch30
pocket29.Length = Q("0.125 in")

# Sketch on XY plane
sketch31 = doc.addObject("Sketcher::SketchObject", "Sketch030")
body.addObject(sketch31)
sketch31.AttachmentSupport = (doc.XY_Plane, [""])
sketch31.MapMode = "FlatFace"
sketch31.addGeometry([
    Part.LineSegment(Vector(38, 586, 0), Vector(38, 646, 0)),
    Part.ArcOfCircle(Part.Circle(Vector(25, 646, 0), Vector(0, 0, 1), 13), math.radians(0), math.radians(180)),
    Part.LineSegment(Vector(13, 646, 0), Vector(13, 586, 0)),
    Part.ArcOfCircle(Part.Circle(Vector(25, 586, 0), Vector(0, 0, 1), 13), math.radians(180), math.radians(360)),
], False)
sketch31.addConstraint([
    Sketcher.Constraint("Tangent", 0, 2, 1, 1),
    Sketcher.Constraint("Tangent", 1, 2, 2, 1),
    Sketcher.Constraint("Tangent", 2, 2, 3, 1),
    Sketcher.Constraint("Tangent", 3, 2, 0, 1),
    Sketcher.Constraint("Vertical", 0),
    Sketcher.Constraint("Vertical", 2),
    Sketcher.Constraint("Radius", 1, Q("0.5 in")),
    Sketcher.Constraint("DistanceX", -1, 1, 1, 3, Q("1 in")),
    Sketcher.Constraint("DistanceY", 0, 1, 0, 2, 60.0),
    Sketcher.Constraint("DistanceY", -1, 1, 1, 3, 645.696),
])
pocket30 = doc.addObject("PartDesign::Pocket", "Pocket029")
body.addObject(pocket30)
pocket30.Profile = sketch31
pocket30.Length = Q("0.125 in")

# Sketch on XY plane
sketch32 = doc.addObject("Sketcher::SketchObject", "Sketch031")
body.addObject(sketch32)
sketch32.AttachmentSupport = (doc.XY_Plane, [""])
sketch32.MapMode = "FlatFace"
sketch32.addGeometry([
    Part.LineSegment(Vector(38, 466, 0), Vector(38, 526, 0)),
    Part.ArcOfCircle(Part.Circle(Vector(25, 526, 0), Vector(0, 0, 1), 13), math.radians(0), math.radians(180)),
    Part.LineSegment(Vector(13, 526, 0), Vector(13, 466, 0)),
    Part.ArcOfCircle(Part.Circle(Vector(25, 466, 0), Vector(0, 0, 1), 13), math.radians(180), math.radians(360)),
], False)
sketch32.addConstraint([
    Sketcher.Constraint("Tangent", 0, 2, 1, 1),
    Sketcher.Constraint("Tangent", 1, 2, 2, 1),
    Sketcher.Constraint("Tangent", 2, 2, 3, 1),
    Sketcher.Constraint("Tangent", 3, 2, 0, 1),
    Sketcher.Constraint("Vertical", 0),
    Sketcher.Constraint("Vertical", 2),
    Sketcher.Constraint("Radius", 1, Q("0.5 in")),
    Sketcher.Constraint("DistanceX", -1, 1, 1, 3, Q("1 in")),
    Sketcher.Constraint("DistanceY", 0, 1, 0, 2, 60.0),
    Sketcher.Constraint("DistanceY", -1, 1, 1, 3, 525.808),
])
pocket31 = doc.addObject("PartDesign::Pocket", "Pocket030")
body.addObject(pocket31)
pocket31.Profile = sketch32
pocket31.Length = Q("0.125 in")

# Sketch on XY plane
sketch33 = doc.addObject("Sketcher::SketchObject", "Sketch032")
body.addObject(sketch33)
sketch33.AttachmentSupport = (doc.XY_Plane, [""])
sketch33.MapMode = "FlatFace"
sketch33.addGeometry([
    Part.LineSegment(Vector(38, 346, 0), Vector(38, 406, 0)),
    Part.ArcOfCircle(Part.Circle(Vector(25, 406, 0), Vector(0, 0, 1), 13), math.radians(0), math.radians(180)),
    Part.LineSegment(Vector(13, 406, 0), Vector(13, 346, 0)),
    Part.ArcOfCircle(Part.Circle(Vector(25, 346, 0), Vector(0, 0, 1), 13), math.radians(180), math.radians(360)),
], False)
sketch33.addConstraint([
    Sketcher.Constraint("Tangent", 0, 2, 1, 1),
    Sketcher.Constraint("Tangent", 1, 2, 2, 1),
    Sketcher.Constraint("Tangent", 2, 2, 3, 1),
    Sketcher.Constraint("Tangent", 3, 2, 0, 1),
    Sketcher.Constraint("Vertical", 0),
    Sketcher.Constraint("Vertical", 2),
    Sketcher.Constraint("Radius", 1, Q("0.5 in")),
    Sketcher.Constraint("DistanceX", -1, 1, 1, 3, Q("1 in")),
    Sketcher.Constraint("DistanceY", 0, 1, 0, 2, 60.0),
    Sketcher.Constraint("DistanceY", -1, 1, 1, 3, 405.92),
])
pocket32 = doc.addObject("PartDesign::Pocket", "Pocket031")
body.addObject(pocket32)
pocket32.Profile = sketch33
pocket32.Length = Q("0.125 in")

# Sketch on XY plane
sketch34 = doc.addObject("Sketcher::SketchObject", "Sketch033")
body.addObject(sketch34)
sketch34.AttachmentSupport = (doc.XY_Plane, [""])
sketch34.MapMode = "FlatFace"
sketch34.addGeometry([
    Part.LineSegment(Vector(38, 226, 0), Vector(38, 286, 0)),
    Part.ArcOfCircle(Part.Circle(Vector(25, 286, 0), Vector(0, 0, 1), 13), math.radians(0), math.radians(180)),
    Part.LineSegment(Vector(13, 286, 0), Vector(13, 226, 0)),
    Part.ArcOfCircle(Part.Circle(Vector(25, 226, 0), Vector(0, 0, 1), 13), math.radians(180), math.radians(360)),
], False)
sketch34.addConstraint([
    Sketcher.Constraint("Tangent", 0, 2, 1, 1),
    Sketcher.Constraint("Tangent", 1, 2, 2, 1),
    Sketcher.Constraint("Tangent", 2, 2, 3, 1),
    Sketcher.Constraint("Tangent", 3, 2, 0, 1),
    Sketcher.Constraint("Vertical", 0),
    Sketcher.Constraint("Vertical", 2),
    Sketcher.Constraint("Radius", 1, Q("0.5 in")),
    Sketcher.Constraint("DistanceX", -1, 1, 1, 3, Q("1 in")),
    Sketcher.Constraint("DistanceY", 0, 1, 0, 2, 60.0),
    Sketcher.Constraint("DistanceY", -1, 1, 1, 3, 286.032),
])
pocket33 = doc.addObject("PartDesign::Pocket", "Pocket032")
body.addObject(pocket33)
pocket33.Profile = sketch34
pocket33.Length = Q("0.125 in")

# Sketch on YZ plane
sketch35 = doc.addObject("Sketcher::SketchObject", "Sketch034")
body.addObject(sketch35)
sketch35.AttachmentSupport = (doc.YZ_Plane, [""])
sketch35.MapMode = "FlatFace"
sketch35.addGeometry([
    Part.LineSegment(Vector(987, -6, 0), Vector(1082, -6, 0)),  # 0
    Part.ArcOfCircle(Part.Circle(Vector(1082, -13, 0), Vector(0, 0, 1), 6), math.radians(-90), math.radians(90)),  # 1
    Part.LineSegment(Vector(1082, -19, 0), Vector(987, -19, 0)),  # 2
    Part.ArcOfCircle(Part.Circle(Vector(987, -13, 0), Vector(0, 0, 1), 6), math.radians(90), math.radians(270)),  # 3
    Part.LineSegment(Vector(867, -6, 0), Vector(962, -6, 0)),  # 4
    Part.ArcOfCircle(Part.Circle(Vector(962, -13, 0), Vector(0, 0, 1), 6), math.radians(-90), math.radians(90)),  # 5
    Part.LineSegment(Vector(962, -19, 0), Vector(867, -19, 0)),  # 6
    Part.ArcOfCircle(Part.Circle(Vector(867, -13, 0), Vector(0, 0, 1), 6), math.radians(90), math.radians(270)),  # 7
    Part.LineSegment(Vector(747, -6, 0), Vector(842, -6, 0)),  # 8
    Part.ArcOfCircle(Part.Circle(Vector(842, -13, 0), Vector(0, 0, 1), 6), math.radians(-90), math.radians(90)),  # 9
    Part.LineSegment(Vector(842, -19, 0), Vector(747, -19, 0)),  # 10
    Part.ArcOfCircle(Part.Circle(Vector(747, -13, 0), Vector(0, 0, 1), 6), math.radians(90), math.radians(270)),  # 11
    Part.LineSegment(Vector(627, -6, 0), Vector(722, -6, 0)),  # 12
    Part.ArcOfCircle(Part.Circle(Vector(722, -13, 0), Vector(0, 0, 1), 6), math.radians(-90), math.radians(90)),  # 13
    Part.LineSegment(Vector(722, -19, 0), Vector(627, -19, 0)),  # 14
    Part.ArcOfCircle(Part.Circle(Vector(627, -13, 0), Vector(0, 0, 1), 6), math.radians(90), math.radians(270)),  # 15
    Part.LineSegment(Vector(507, -6, 0), Vector(602, -6, 0)),  # 16
    Part.ArcOfCircle(Part.Circle(Vector(602, -13, 0), Vector(0, 0, 1), 6), math.radians(-90), math.radians(90)),  # 17
    Part.LineSegment(Vector(602, -19, 0), Vector(507, -19, 0)),  # 18
    Part.ArcOfCircle(Part.Circle(Vector(507, -13, 0), Vector(0, 0, 1), 6), math.radians(90), math.radians(270)),  # 19
    Part.LineSegment(Vector(387, -6, 0), Vector(482, -6, 0)),  # 20
    Part.ArcOfCircle(Part.Circle(Vector(482, -13, 0), Vector(0, 0, 1), 6), math.radians(-90), math.radians(90)),  # 21
    Part.LineSegment(Vector(482, -19, 0), Vector(387, -19, 0)),  # 22
    Part.ArcOfCircle(Part.Circle(Vector(387, -13, 0), Vector(0, 0, 1), 6), math.radians(90), math.radians(270)),  # 23
    Part.LineSegment(Vector(267, -6, 0), Vector(362, -6, 0)),  # 24
    Part.ArcOfCircle(Part.Circle(Vector(362, -13, 0), Vector(0, 0, 1), 6), math.radians(-90), math.radians(90)),  # 25
    Part.LineSegment(Vector(362, -19, 0), Vector(267, -19, 0)),  # 26
    Part.ArcOfCircle(Part.Circle(Vector(267, -13, 0), Vector(0, 0, 1), 6), math.radians(90), math.radians(270)),  # 27
    Part.LineSegment(Vector(147, -6, 0), Vector(242, -6, 0)),  # 28
    Part.ArcOfCircle(Part.Circle(Vector(242, -13, 0), Vector(0, 0, 1), 6), math.radians(-90), math.radians(90)),  # 29
    Part.LineSegment(Vector(242, -19, 0), Vector(147, -19, 0)),  # 30
    Part.ArcOfCircle(Part.Circle(Vector(147, -13, 0), Vector(0, 0, 1), 6), math.radians(90), math.radians(270)),  # 31
], False)
sketch35.addConstraint([
    Sketcher.Constraint("Tangent", 0, 2, 1, 2),
    Sketcher.Constraint("Tangent", 1, 1, 2, 1),
    Sketcher.Constraint("Tangent", 2, 2, 3, 2),
    Sketcher.Constraint("Tangent", 3, 1, 0, 1),
    Sketcher.Constraint("Tangent", 4, 2, 5, 2),
    Sketcher.Constraint("Tangent", 5, 1, 6, 1),
    Sketcher.Constraint("Tangent", 6, 2, 7, 2),
    Sketcher.Constraint("Tangent", 7, 1, 4, 1),
    Sketcher.Constraint("Tangent", 8, 2, 9, 2),
    Sketcher.Constraint("Tangent", 9, 1, 10, 1),
    Sketcher.Constraint("Tangent", 10, 2, 11, 2),
    Sketcher.Constraint("Tangent", 11, 1, 8, 1),
    Sketcher.Constraint("Tangent", 12, 2, 13, 2),
    Sketcher.Constraint("Tangent", 13, 1, 14, 1),
    Sketcher.Constraint("Tangent", 14, 2, 15, 2),
    Sketcher.Constraint("Tangent", 15, 1, 12, 1),
    Sketcher.Constraint("Tangent", 16, 2, 17, 2),
    Sketcher.Constraint("Tangent", 17, 1, 18, 1),
    Sketcher.Constraint("Tangent", 18, 2, 19, 2),
    Sketcher.Constraint("Tangent", 19, 1, 16, 1),
    Sketcher.Constraint("Tangent", 20, 2, 21, 2),
    Sketcher.Constraint("Tangent", 21, 1, 22, 1),
    Sketcher.Constraint("Tangent", 22, 2, 23, 2),
    Sketcher.Constraint("Tangent", 23, 1, 20, 1),
    Sketcher.Constraint("Tangent", 24, 2, 25, 2),
    Sketcher.Constraint("Tangent", 25, 1, 26, 1),
    Sketcher.Constraint("Tangent", 26, 2, 27, 2),
    Sketcher.Constraint("Tangent", 27, 1, 24, 1),
    Sketcher.Constraint("Tangent", 28, 2, 29, 2),
    Sketcher.Constraint("Tangent", 29, 1, 30, 1),
    Sketcher.Constraint("Tangent", 30, 2, 31, 2),
    Sketcher.Constraint("Tangent", 31, 1, 28, 1),
    Sketcher.Constraint("Horizontal", 0),
    Sketcher.Constraint("Horizontal", 2),
    Sketcher.Constraint("Horizontal", 4),
    Sketcher.Constraint("Horizontal", 6),
    Sketcher.Constraint("Horizontal", 8),
    Sketcher.Constraint("Horizontal", 10),
    Sketcher.Constraint("Horizontal", 12),
    Sketcher.Constraint("Horizontal", 14),
    Sketcher.Constraint("Horizontal", 16),
    Sketcher.Constraint("Horizontal", 18),
    Sketcher.Constraint("Horizontal", 20),
    Sketcher.Constraint("Horizontal", 22),
    Sketcher.Constraint("Horizontal", 24),
    Sketcher.Constraint("Horizontal", 26),
    Sketcher.Constraint("Horizontal", 28),
    Sketcher.Constraint("Horizontal", 30),
    Sketcher.Constraint("Equal", 3, 5),
    Sketcher.Constraint("Equal", 7, 9),
    Sketcher.Constraint("Equal", 11, 13),
    Sketcher.Constraint("Equal", 15, 17),
    Sketcher.Constraint("Equal", 19, 21),
    Sketcher.Constraint("Equal", 23, 25),
    Sketcher.Constraint("Equal", 27, 29),
    Sketcher.Constraint("Horizontal", 3, 3, 5, 3),
    Sketcher.Constraint("Horizontal", 7, 3, 9, 3),
    Sketcher.Constraint("Horizontal", 11, 3, 13, 3),
    Sketcher.Constraint("Horizontal", 15, 3, 17, 3),
    Sketcher.Constraint("Horizontal", 19, 3, 21, 3),
    Sketcher.Constraint("Horizontal", 23, 3, 25, 3),
    Sketcher.Constraint("Horizontal", 27, 3, 29, 3),
    Sketcher.Constraint("Equal", 2, 4),
    Sketcher.Constraint("Equal", 6, 8),
    Sketcher.Constraint("Equal", 10, 12),
    Sketcher.Constraint("Equal", 14, 16),
    Sketcher.Constraint("Equal", 18, 20),
    Sketcher.Constraint("Equal", 22, 24),
    Sketcher.Constraint("Equal", 26, 28),
    Sketcher.Constraint("Radius", 1, Q("0.25 in")),
    Sketcher.Constraint("DistanceY", 1, 3, -1, 1, Q("0.5 in")),
    Sketcher.Constraint("DistanceX", 0, 1, 0, 2, 94.8),
    Sketcher.Constraint("DistanceX", -1, 1, 1, 3, 1082.05),
    Sketcher.Constraint("DistanceX", -1, 1, 5, 3, 962.05),
    Sketcher.Constraint("DistanceX", -1, 1, 9, 3, 842.05),
    Sketcher.Constraint("DistanceX", -1, 1, 13, 3, 722.05),
    Sketcher.Constraint("DistanceX", -1, 1, 17, 3, 602.05),
    Sketcher.Constraint("DistanceX", -1, 1, 21, 3, 482.05),
    Sketcher.Constraint("DistanceX", -1, 1, 25, 3, 362.05),
    Sketcher.Constraint("DistanceX", -1, 1, 29, 3, 242.05),
])
pocket34 = doc.addObject("PartDesign::Pocket", "Pocket033")
body.addObject(pocket34)
pocket34.Profile = sketch35
pocket34.Type = "ThroughAll"
pocket34.Reversed = True

doc.recompute()
